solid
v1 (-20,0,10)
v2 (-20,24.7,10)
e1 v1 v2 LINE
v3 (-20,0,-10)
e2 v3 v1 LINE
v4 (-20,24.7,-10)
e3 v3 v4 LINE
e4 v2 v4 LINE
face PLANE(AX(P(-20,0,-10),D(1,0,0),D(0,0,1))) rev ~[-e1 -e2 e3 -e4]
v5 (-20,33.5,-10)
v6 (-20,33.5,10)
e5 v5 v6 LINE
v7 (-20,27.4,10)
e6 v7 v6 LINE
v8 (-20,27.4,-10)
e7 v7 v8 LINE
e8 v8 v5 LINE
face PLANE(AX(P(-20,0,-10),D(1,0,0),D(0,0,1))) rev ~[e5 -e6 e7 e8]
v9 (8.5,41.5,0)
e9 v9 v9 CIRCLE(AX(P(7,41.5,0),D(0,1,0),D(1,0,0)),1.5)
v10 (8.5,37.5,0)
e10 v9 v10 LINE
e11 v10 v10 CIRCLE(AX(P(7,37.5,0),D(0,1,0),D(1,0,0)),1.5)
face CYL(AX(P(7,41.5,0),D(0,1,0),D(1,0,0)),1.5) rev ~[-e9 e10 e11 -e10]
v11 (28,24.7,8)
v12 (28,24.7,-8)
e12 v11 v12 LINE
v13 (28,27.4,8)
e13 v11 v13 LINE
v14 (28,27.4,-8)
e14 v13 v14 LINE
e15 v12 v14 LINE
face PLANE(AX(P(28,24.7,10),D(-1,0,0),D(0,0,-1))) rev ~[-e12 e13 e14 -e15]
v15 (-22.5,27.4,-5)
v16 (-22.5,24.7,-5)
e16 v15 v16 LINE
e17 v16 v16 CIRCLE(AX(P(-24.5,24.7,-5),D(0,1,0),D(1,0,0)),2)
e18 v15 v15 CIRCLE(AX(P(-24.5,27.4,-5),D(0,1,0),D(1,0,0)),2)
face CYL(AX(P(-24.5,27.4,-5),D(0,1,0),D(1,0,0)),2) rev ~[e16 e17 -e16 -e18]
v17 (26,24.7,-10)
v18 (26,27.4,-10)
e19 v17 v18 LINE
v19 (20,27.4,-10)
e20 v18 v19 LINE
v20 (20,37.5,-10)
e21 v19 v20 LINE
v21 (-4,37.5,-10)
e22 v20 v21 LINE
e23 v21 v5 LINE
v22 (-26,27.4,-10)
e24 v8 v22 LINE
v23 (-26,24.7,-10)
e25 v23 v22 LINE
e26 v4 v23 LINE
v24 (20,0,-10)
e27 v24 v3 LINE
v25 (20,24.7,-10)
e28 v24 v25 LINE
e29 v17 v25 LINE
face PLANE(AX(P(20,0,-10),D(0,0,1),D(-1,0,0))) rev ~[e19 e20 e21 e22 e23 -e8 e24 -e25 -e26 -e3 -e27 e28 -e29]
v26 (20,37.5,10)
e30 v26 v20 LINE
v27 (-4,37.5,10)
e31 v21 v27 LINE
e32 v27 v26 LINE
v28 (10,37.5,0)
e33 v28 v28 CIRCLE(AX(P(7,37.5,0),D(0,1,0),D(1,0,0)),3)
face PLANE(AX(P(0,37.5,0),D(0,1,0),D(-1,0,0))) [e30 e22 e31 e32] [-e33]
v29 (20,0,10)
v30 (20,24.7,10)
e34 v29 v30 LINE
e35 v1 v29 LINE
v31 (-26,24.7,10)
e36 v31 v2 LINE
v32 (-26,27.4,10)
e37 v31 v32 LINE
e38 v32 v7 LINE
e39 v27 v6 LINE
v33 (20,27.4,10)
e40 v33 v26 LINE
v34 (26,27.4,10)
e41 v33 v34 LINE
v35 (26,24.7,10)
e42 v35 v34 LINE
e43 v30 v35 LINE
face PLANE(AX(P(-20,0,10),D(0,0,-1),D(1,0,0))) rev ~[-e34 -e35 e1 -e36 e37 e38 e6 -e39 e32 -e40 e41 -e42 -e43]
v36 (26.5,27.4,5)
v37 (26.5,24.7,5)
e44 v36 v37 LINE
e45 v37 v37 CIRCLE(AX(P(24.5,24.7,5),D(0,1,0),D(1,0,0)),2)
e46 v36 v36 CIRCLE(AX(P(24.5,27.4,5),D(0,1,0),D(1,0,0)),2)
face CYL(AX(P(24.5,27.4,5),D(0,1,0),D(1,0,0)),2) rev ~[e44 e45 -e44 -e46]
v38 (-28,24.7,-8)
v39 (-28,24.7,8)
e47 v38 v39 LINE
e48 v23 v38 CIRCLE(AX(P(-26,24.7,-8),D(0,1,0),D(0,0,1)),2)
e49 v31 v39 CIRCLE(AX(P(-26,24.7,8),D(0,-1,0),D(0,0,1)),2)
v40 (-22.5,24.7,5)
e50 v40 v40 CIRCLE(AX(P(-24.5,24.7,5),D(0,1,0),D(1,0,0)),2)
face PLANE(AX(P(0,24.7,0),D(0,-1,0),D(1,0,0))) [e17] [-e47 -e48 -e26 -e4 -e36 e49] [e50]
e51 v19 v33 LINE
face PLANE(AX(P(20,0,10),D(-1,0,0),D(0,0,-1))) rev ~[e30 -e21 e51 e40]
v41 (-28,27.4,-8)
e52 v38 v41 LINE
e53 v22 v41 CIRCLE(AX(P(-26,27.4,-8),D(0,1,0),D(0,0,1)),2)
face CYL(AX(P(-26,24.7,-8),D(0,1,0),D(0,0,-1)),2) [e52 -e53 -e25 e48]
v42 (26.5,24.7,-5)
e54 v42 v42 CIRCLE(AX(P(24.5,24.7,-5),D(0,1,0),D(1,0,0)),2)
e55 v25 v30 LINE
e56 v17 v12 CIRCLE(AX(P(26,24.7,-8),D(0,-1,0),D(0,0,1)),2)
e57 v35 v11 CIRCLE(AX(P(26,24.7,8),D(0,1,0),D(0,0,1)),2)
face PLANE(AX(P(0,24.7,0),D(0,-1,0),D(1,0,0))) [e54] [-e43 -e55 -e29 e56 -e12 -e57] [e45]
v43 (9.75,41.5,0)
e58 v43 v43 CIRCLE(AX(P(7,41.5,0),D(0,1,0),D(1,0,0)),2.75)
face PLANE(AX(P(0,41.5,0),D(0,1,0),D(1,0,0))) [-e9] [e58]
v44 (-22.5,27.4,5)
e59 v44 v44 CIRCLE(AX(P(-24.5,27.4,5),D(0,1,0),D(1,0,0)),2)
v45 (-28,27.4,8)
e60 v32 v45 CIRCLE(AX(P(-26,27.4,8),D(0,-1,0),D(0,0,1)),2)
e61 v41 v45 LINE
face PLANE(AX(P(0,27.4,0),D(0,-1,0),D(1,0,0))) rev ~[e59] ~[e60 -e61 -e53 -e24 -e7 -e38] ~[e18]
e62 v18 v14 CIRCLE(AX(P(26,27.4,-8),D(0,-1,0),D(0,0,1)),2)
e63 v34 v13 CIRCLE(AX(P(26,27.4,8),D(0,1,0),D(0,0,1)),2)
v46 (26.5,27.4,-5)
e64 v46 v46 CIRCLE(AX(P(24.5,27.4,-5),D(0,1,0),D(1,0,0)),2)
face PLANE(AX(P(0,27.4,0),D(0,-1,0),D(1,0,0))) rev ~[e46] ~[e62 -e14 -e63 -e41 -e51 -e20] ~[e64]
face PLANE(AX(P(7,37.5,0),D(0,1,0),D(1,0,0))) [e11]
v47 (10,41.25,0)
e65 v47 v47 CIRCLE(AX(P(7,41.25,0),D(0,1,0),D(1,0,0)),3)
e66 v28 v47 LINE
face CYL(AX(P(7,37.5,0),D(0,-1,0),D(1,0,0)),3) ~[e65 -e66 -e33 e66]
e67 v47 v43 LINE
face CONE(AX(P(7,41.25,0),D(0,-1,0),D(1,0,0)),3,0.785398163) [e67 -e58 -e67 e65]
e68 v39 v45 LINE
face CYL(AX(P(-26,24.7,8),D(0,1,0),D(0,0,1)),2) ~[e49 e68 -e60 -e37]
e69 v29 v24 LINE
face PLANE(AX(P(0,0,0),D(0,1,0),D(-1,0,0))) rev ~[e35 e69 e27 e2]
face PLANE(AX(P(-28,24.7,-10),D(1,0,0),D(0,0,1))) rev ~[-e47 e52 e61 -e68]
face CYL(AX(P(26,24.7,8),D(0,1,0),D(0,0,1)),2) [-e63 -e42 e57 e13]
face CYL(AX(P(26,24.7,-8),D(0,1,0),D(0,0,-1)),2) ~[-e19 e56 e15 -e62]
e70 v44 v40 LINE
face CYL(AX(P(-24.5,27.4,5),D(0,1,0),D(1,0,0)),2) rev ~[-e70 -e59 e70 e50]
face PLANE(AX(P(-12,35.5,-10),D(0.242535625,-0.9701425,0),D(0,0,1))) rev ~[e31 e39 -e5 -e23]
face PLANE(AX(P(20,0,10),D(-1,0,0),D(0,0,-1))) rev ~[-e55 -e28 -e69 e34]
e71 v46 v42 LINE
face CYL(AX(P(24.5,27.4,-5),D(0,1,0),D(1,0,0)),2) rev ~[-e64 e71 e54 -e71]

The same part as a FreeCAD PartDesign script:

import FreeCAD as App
import Part
import Sketcher
from FreeCAD import Vector
Q = App.Units.Quantity


def edges_at(feature, points):
    """Names of the edges that pass closest to the given points."""
    edges = feature.Shape.Edges
    near = lambda p: min(range(len(edges)), key=lambda i: edges[i].distToShape(Part.Vertex(*p))[0])
    return sorted({f"Edge{near(p) + 1}" for p in points})

doc = App.newDocument("Part")
body = doc.addObject("PartDesign::Body", "Body")

# Sketch on XZ plane
sketch1 = body.newObject("Sketcher::SketchObject", "Sketch")
sketch1.AttachmentSupport = (doc.getObject("XZ_Plane"), [""])
sketch1.MapMode = "FlatFace"
sketch1.addGeometry([
    Part.LineSegment(Vector(-20, -10, 0), Vector(-20, 10, 0)),
    Part.LineSegment(Vector(-20, 10, 0), Vector(20, 10, 0)),
    Part.LineSegment(Vector(20, 10, 0), Vector(20, -10, 0)),
    Part.LineSegment(Vector(20, -10, 0), Vector(-20, -10, 0)),
], False)
sketch1.addConstraint([
    Sketcher.Constraint("Coincident", 0, 2, 1, 1),
    Sketcher.Constraint("Coincident", 1, 2, 2, 1),
    Sketcher.Constraint("Coincident", 2, 2, 3, 1),
    Sketcher.Constraint("Coincident", 3, 2, 0, 1),
    Sketcher.Constraint("Vertical", 0),
    Sketcher.Constraint("Horizontal", 1),
    Sketcher.Constraint("Vertical", 2),
    Sketcher.Constraint("Horizontal", 3),
    Sketcher.Constraint("Symmetric", 0, 2, 2, 2, -1, 1),
    Sketcher.Constraint("DistanceX", 1, 1, 1, 2, Q("40 mm")),
    Sketcher.Constraint("DistanceY", 0, 1, 0, 2, Q("20 mm")),
])
pad1 = body.newObject("PartDesign::Pad", "Pad")
pad1.Profile = sketch1
pad1.Length = 37.5
pad1.Reversed = True

# Sketch on XZ plane
sketch2 = body.newObject("Sketcher::SketchObject", "Sketch001")
sketch2.AttachmentSupport = (doc.getObject("XZ_Plane"), [""])
sketch2.MapMode = "FlatFace"
sketch2.AttachmentOffset = App.Placement(Vector(0, 0, -24.7), App.Rotation())
sketch2.addGeometry([
    Part.LineSegment(Vector(28, 10, 0), Vector(-28, 10, 0)),
    Part.LineSegment(Vector(-28, 10, 0), Vector(-28, -10, 0)),
    Part.LineSegment(Vector(-28, -10, 0), Vector(28, -10, 0)),
    Part.LineSegment(Vector(28, -10, 0), Vector(28, 10, 0)),
], False)
sketch2.addConstraint([
    Sketcher.Constraint("Coincident", 0, 2, 1, 1),
    Sketcher.Constraint("Coincident", 1, 2, 2, 1),
    Sketcher.Constraint("Coincident", 2, 2, 3, 1),
    Sketcher.Constraint("Coincident", 3, 2, 0, 1),
    Sketcher.Constraint("Horizontal", 0),
    Sketcher.Constraint("Vertical", 1),
    Sketcher.Constraint("Horizontal", 2),
    Sketcher.Constraint("Vertical", 3),
    Sketcher.Constraint("Symmetric", 0, 2, 2, 2, -1, 1),
    Sketcher.Constraint("DistanceX", 0, 2, 0, 1, Q("56 mm")),
    Sketcher.Constraint("DistanceY", 1, 2, 1, 1, Q("20 mm")),
])
pad2 = body.newObject("PartDesign::Pad", "Pad001")
pad2.Profile = sketch2
pad2.Length = 2.7
pad2.Reversed = True

# Sketch on XZ plane
sketch3 = body.newObject("Sketcher::SketchObject", "Sketch002")
sketch3.AttachmentSupport = (doc.getObject("XZ_Plane"), [""])
sketch3.MapMode = "FlatFace"
sketch3.AttachmentOffset = App.Placement(Vector(0, 0, -27.4), App.Rotation())
sketch3.addGeometry([
    Part.Circle(Vector(-24.5, 5, 0), Vector(0, 0, 1), 2),
    Part.Circle(Vector(-24.5, -5, 0), Vector(0, 0, 1), 2),
    Part.Circle(Vector(24.5, 5, 0), Vector(0, 0, 1), 2),
    Part.Circle(Vector(24.5, -5, 0), Vector(0, 0, 1), 2),
], False)
sketch3.addConstraint([
    Sketcher.Constraint("Equal", 0, 1),
    Sketcher.Constraint("Equal", 1, 2),
    Sketcher.Constraint("Equal", 2, 3),
    Sketcher.Constraint("Symmetric", 1, 3, 2, 3, -1, 1),
    Sketcher.Constraint("Symmetric", 0, 3, 3, 3, -1, 1),
    Sketcher.Constraint("Symmetric", 0, 3, 2, 3, -2),
    Sketcher.Constraint("Diameter", 0, Q("4 mm")),
    Sketcher.Constraint("DistanceY", -1, 1, 0, 3, Q("5 mm")),
    Sketcher.Constraint("DistanceX", 0, 3, -1, 1, Q("24.5 mm")),
])
pocket1 = body.newObject("PartDesign::Pocket", "Pocket")
pocket1.Profile = sketch3
pocket1.Length = 2.7
pocket1.Reversed = True

# Sketch on XZ plane
sketch4 = body.newObject("Sketcher::SketchObject", "Sketch003")
sketch4.AttachmentSupport = (doc.getObject("XZ_Plane"), [""])
sketch4.MapMode = "FlatFace"
sketch4.AttachmentOffset = App.Placement(Vector(0, 0, -37.5), App.Rotation())
sketch4.addGeometry(Part.Circle(Vector(7, 0, 0), Vector(0, 0, 1), 3), False)
sketch4.addConstraint([
    Sketcher.Constraint("PointOnObject", 0, 3, -1),
    Sketcher.Constraint("Diameter", 0, Q("6 mm")),
    Sketcher.Constraint("DistanceX", -1, 1, 0, 3, Q("7 mm")),
])
pad3 = body.newObject("PartDesign::Pad", "Pad002")
pad3.Profile = sketch4
pad3.Length = 4
pad3.Reversed = True
doc.recompute()

fillet = body.newObject("PartDesign::Fillet", "Fillet")
fillet.Base = (pad3, edges_at(pad3, [
    (-28, 26.05, 10),
    (28, 26.05, 10),
    (28, 26.05, -10),
    (-28, 26.05, -10),
]))
fillet.Radius = 2
doc.recompute()

chamfer = body.newObject("PartDesign::Chamfer", "Chamfer")
chamfer.Base = (fillet, edges_at(fillet, [(-20, 37.5, 0)]))
chamfer.ChamferType = "Two distances"
chamfer.Size = 16
chamfer.Size2 = 4

# Sketch on XZ plane
sketch5 = body.newObject("Sketcher::SketchObject", "Sketch004")
sketch5.AttachmentSupport = (doc.getObject("XZ_Plane"), [""])
sketch5.MapMode = "FlatFace"
sketch5.AttachmentOffset = App.Placement(Vector(0, 0, -41.5), App.Rotation())
sketch5.addGeometry(Part.Circle(Vector(7, 0, 0), Vector(0, 0, 1), 1.5), False)
sketch5.addConstraint([
    Sketcher.Constraint("PointOnObject", 0, 3, -1),
    Sketcher.Constraint("Diameter", 0, Q("3 mm")),
    Sketcher.Constraint("DistanceX", -1, 1, 0, 3, Q("7 mm")),
])
pocket2 = body.newObject("PartDesign::Pocket", "Pocket001")
pocket2.Profile = sketch5
pocket2.Length = 4
pocket2.Reversed = True
doc.recompute()

chamfer2 = body.newObject("PartDesign::Chamfer", "Chamfer001")
chamfer2.Base = (pocket2, edges_at(pocket2, [(4, 41.5, 0)]))
chamfer2.Size = 0.25

doc.recompute()
